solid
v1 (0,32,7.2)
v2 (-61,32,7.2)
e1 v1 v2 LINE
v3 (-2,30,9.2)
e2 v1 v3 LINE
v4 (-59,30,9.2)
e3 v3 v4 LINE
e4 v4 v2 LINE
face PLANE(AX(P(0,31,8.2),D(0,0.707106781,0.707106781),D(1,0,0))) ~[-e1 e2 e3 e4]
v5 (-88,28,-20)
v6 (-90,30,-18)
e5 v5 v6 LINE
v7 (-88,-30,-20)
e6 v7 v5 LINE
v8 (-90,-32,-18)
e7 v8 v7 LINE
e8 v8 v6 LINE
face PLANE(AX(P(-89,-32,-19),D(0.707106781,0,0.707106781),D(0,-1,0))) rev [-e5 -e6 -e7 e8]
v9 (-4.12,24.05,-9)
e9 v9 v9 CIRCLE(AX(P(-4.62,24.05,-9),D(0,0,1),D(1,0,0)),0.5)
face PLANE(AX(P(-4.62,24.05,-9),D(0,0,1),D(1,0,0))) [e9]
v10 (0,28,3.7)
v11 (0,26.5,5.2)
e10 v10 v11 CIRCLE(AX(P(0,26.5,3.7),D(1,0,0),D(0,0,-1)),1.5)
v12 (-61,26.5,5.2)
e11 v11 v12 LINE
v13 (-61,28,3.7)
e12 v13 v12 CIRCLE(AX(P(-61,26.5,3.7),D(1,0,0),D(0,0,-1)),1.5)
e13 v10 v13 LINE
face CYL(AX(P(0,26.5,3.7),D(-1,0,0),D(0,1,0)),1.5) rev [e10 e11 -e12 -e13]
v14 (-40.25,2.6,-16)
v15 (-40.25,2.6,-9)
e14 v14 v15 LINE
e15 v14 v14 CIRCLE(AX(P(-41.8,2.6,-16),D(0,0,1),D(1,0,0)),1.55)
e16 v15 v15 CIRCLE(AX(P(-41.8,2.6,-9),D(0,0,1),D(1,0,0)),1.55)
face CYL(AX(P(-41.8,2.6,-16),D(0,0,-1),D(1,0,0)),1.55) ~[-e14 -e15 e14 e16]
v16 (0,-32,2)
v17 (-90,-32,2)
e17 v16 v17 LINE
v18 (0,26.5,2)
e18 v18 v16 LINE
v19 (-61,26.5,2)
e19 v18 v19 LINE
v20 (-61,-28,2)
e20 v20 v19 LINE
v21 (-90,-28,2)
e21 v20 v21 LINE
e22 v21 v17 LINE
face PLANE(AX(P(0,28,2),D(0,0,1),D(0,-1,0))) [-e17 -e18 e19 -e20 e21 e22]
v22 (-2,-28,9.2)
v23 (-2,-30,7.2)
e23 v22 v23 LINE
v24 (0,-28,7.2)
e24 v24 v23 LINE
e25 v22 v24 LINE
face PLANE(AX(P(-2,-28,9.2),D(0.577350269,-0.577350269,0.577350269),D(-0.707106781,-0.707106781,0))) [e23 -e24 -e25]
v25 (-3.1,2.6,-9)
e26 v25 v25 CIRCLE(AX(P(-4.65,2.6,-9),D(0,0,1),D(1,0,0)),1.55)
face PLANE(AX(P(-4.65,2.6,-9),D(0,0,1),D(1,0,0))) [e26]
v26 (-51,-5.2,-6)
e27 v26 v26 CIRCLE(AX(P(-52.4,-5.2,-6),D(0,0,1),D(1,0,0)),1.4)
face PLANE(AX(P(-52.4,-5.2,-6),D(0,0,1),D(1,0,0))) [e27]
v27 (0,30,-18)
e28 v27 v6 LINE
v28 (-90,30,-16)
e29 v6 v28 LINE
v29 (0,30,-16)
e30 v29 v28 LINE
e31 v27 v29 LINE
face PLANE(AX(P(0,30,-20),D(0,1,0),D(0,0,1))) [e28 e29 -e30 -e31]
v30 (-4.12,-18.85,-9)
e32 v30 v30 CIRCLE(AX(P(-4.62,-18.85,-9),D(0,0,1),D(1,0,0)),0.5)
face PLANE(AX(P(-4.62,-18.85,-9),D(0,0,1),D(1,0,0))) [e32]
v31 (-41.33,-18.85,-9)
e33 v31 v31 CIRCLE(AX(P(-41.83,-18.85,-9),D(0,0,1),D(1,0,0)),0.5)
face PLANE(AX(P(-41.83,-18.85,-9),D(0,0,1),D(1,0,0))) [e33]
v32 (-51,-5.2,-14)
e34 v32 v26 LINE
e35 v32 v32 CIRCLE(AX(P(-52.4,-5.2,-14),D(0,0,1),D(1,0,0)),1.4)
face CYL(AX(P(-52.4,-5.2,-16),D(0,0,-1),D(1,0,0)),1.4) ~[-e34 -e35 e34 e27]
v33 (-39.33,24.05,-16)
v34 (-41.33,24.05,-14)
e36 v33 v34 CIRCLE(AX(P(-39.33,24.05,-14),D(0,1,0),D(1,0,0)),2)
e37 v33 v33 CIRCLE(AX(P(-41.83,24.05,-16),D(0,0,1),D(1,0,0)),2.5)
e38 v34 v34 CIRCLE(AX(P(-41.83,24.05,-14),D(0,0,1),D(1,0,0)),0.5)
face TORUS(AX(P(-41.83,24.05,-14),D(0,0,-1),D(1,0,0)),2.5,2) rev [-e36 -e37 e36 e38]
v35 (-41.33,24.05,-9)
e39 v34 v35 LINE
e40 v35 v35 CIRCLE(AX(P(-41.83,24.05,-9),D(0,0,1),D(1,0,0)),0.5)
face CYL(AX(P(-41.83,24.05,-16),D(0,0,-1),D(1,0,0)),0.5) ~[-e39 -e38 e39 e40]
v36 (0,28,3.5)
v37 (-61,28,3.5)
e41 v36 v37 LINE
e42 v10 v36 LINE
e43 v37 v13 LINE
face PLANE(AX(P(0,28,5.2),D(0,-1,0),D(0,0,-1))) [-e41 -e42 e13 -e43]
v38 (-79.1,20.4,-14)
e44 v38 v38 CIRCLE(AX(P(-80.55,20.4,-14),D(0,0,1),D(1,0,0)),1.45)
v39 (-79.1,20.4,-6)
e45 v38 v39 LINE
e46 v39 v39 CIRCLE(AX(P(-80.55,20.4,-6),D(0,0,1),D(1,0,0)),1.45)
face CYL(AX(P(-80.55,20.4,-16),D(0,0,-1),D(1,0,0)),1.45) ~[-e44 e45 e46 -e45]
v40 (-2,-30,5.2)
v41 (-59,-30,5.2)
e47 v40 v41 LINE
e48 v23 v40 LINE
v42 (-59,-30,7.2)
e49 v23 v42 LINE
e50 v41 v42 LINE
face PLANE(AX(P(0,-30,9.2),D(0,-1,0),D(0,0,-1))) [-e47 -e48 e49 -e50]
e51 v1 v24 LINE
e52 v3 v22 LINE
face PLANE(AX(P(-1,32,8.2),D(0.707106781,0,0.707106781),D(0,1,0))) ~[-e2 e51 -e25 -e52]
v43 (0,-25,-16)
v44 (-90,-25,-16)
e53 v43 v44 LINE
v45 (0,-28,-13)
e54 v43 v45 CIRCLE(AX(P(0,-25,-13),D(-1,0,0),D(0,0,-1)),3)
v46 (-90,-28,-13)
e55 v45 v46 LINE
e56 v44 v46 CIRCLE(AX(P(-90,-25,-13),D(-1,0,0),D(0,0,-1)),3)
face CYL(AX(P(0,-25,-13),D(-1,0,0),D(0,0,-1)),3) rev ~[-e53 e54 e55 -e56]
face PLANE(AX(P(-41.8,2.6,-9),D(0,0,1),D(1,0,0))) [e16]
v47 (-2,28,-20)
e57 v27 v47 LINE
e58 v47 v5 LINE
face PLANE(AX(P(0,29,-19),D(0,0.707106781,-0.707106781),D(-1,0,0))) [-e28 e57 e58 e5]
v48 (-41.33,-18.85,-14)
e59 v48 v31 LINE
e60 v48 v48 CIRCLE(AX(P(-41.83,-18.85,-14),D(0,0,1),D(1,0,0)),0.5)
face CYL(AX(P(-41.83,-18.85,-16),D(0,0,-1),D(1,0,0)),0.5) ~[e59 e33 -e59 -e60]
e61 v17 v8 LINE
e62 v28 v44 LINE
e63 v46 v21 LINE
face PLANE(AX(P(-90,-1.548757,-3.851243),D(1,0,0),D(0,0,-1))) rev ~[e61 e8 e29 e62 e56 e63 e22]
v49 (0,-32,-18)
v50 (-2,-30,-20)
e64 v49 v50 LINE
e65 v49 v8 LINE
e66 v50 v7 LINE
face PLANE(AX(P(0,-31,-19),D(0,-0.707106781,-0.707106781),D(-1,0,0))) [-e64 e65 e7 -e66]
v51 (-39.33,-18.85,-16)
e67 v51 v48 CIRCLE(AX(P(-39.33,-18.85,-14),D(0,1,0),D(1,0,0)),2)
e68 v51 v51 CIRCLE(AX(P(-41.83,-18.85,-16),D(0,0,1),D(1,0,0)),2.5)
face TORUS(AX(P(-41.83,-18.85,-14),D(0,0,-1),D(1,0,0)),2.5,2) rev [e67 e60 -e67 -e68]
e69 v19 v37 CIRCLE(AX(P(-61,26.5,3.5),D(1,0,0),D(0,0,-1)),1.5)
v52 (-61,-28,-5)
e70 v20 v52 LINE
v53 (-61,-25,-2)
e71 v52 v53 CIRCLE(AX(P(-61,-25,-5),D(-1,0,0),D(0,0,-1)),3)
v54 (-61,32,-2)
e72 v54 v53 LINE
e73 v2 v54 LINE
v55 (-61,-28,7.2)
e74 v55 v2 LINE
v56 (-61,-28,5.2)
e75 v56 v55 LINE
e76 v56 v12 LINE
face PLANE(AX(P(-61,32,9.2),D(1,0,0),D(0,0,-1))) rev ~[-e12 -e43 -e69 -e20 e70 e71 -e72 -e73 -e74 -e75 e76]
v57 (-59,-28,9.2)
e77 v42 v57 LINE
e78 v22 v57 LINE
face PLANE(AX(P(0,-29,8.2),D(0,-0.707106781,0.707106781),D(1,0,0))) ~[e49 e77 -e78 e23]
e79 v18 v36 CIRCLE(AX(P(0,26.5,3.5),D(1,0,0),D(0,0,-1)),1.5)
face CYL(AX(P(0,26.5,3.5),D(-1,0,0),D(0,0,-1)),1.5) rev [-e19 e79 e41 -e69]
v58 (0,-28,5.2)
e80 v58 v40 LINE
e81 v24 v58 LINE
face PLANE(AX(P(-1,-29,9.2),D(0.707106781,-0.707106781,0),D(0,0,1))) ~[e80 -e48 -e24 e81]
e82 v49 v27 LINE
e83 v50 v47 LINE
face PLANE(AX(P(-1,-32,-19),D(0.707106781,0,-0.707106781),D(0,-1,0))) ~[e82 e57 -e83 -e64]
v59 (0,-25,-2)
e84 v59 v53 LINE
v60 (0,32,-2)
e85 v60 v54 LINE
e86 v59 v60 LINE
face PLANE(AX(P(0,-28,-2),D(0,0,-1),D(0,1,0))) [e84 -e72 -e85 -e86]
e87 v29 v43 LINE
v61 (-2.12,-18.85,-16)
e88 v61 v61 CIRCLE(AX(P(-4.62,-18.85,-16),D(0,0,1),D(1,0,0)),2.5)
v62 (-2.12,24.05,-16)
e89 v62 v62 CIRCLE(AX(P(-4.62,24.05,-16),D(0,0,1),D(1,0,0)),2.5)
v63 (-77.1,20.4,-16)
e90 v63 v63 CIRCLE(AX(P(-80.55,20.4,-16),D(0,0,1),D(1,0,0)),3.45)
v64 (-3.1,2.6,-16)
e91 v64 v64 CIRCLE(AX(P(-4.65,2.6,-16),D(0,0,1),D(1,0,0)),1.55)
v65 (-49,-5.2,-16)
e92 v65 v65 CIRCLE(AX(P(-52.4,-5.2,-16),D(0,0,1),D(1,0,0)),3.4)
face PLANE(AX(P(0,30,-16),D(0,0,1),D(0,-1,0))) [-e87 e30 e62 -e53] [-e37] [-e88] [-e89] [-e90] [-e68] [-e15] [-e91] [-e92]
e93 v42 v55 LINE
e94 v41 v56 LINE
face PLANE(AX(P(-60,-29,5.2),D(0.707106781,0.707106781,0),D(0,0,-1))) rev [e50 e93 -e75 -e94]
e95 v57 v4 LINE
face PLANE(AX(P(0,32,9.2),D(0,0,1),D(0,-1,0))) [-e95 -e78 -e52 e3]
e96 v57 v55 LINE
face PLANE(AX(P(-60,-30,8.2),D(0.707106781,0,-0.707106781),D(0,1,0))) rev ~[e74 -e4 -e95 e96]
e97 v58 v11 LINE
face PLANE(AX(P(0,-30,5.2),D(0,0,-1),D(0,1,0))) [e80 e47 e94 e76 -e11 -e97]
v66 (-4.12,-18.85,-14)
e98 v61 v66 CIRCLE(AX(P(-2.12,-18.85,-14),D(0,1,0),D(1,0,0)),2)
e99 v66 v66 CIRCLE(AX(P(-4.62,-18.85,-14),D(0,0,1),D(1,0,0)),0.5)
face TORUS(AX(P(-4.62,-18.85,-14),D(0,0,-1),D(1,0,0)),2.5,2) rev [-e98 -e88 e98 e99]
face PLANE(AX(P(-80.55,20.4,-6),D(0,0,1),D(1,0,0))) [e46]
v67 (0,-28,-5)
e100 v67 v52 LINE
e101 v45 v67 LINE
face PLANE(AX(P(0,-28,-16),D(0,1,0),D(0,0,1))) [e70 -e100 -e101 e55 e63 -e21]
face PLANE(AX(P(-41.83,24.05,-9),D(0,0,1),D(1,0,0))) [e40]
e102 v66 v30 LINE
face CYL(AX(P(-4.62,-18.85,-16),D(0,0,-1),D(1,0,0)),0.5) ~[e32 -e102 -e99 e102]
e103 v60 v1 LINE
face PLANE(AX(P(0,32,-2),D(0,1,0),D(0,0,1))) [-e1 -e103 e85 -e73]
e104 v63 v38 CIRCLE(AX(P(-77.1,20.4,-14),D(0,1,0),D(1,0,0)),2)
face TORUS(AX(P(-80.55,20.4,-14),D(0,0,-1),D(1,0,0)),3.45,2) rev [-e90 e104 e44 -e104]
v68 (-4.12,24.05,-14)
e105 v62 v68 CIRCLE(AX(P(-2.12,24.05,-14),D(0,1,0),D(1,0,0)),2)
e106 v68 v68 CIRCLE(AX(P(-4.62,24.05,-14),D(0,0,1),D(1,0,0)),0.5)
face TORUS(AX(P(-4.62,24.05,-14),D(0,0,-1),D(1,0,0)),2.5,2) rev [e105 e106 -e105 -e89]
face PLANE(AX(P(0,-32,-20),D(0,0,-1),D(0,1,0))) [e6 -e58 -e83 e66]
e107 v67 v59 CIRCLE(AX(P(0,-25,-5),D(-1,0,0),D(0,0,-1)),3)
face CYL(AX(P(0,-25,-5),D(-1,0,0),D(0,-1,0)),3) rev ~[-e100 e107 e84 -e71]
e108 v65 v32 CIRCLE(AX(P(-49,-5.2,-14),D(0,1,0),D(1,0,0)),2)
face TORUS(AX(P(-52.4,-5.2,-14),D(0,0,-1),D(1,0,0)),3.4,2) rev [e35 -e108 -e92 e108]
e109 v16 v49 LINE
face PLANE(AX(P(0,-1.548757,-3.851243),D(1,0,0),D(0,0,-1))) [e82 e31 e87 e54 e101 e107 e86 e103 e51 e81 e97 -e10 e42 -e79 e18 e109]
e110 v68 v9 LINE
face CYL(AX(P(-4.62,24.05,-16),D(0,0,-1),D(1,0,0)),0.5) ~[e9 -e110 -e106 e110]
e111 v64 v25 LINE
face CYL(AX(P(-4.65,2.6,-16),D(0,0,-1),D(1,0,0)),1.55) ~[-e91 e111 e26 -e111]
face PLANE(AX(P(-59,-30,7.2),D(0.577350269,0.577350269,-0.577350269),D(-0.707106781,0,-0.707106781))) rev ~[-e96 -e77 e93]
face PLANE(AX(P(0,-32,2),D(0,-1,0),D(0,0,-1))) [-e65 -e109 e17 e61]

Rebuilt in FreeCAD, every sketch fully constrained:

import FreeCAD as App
import Part
import Sketcher


def edges_at(feature, points):
    """Names of the edges that pass closest to the given points."""
    edges = feature.Shape.Edges
    near = lambda p: min(range(len(edges)), key=lambda i: edges[i].distToShape(Part.Vertex(*p))[0])
    return sorted({f"Edge{near(p) + 1}" for p in points})


def add_polygon(sketch, points):
    """Adds a closed chain of lines whose ends are joined by coincident constraints."""
    first, n = sketch.GeometryCount, len(points)
    for a, b in zip(points, points[1:] + points[:1]):
        sketch.addGeometry(Part.LineSegment(App.Vector(*a, 0), App.Vector(*b, 0)), False)
    for i in range(n):
        sketch.addConstraint(Sketcher.Constraint("Coincident", first + i, 2, first + (i + 1) % n, 1))

doc = App.newDocument("Part")
body = doc.addObject("PartDesign::Body", "Body")

# Sketch on YZ plane
sketch1 = body.newObject("Sketcher::SketchObject", "Sketch")
sketch1.AttachmentSupport = (doc.getObject("YZ_Plane"), [""])
sketch1.MapMode = "FlatFace"
add_polygon(sketch1, [(-30, 5.2), (28, 5.2), (28, 2), (-32, 2), (-32, -20), (30, -20), (30, -16), (-28, -16), (-28, -2), (32, -2), (32, 9.2), (-30, 9.2)])  # lines 0-11
sketch1.addConstraint(Sketcher.Constraint("Horizontal", 0))
sketch1.addConstraint(Sketcher.Constraint("Vertical", 1))
sketch1.addConstraint(Sketcher.Constraint("Horizontal", 2))
sketch1.addConstraint(Sketcher.Constraint("Vertical", 3))
sketch1.addConstraint(Sketcher.Constraint("Horizontal", 4))
sketch1.addConstraint(Sketcher.Constraint("Vertical", 5))
sketch1.addConstraint(Sketcher.Constraint("Horizontal", 6))
sketch1.addConstraint(Sketcher.Constraint("Vertical", 7))
sketch1.addConstraint(Sketcher.Constraint("Horizontal", 8))
sketch1.addConstraint(Sketcher.Constraint("Vertical", 9))
sketch1.addConstraint(Sketcher.Constraint("Horizontal", 10))
sketch1.addConstraint(Sketcher.Constraint("Vertical", 11))
sketch1.addConstraint(Sketcher.Constraint("Symmetric", 1, 2, 7, 2, -1, 1))
sketch1.addConstraint(Sketcher.Constraint("Equal", 0, 6))
sketch1.addConstraint(Sketcher.Constraint("Equal", 2, 8))
sketch1.addConstraint(Sketcher.Constraint("Equal", 5, 11))
sketch1.addConstraint(Sketcher.Constraint("DistanceX", 0, 1, 0, 2, 58.0))
sketch1.addConstraint(Sketcher.Constraint("DistanceX", 2, 2, 2, 1, 60.0))
sketch1.addConstraint(Sketcher.Constraint("DistanceX", 4, 1, 4, 2, 62.0))
sketch1.addConstraint(Sketcher.Constraint("DistanceY", 3, 2, 3, 1, 22.0))
sketch1.addConstraint(Sketcher.Constraint("DistanceY", 5, 1, 5, 2, 4.0))
sketch1.addConstraint(Sketcher.Constraint("DistanceY", 7, 1, 7, 2, 14.0))
sketch1.addConstraint(Sketcher.Constraint("DistanceY", 1, 2, 1, 1, 3.2))
pad1 = body.newObject("PartDesign::Pad", "Pad")
pad1.Profile = sketch1
pad1.Length = 90
pad1.Reversed = True

# Sketch on XZ plane
sketch2 = body.newObject("Sketcher::SketchObject", "Sketch001")
sketch2.AttachmentSupport = (doc.getObject("XZ_Plane"), [""])
sketch2.MapMode = "FlatFace"
sketch2.AttachmentOffset = App.Placement(App.Vector(0, 0, -32), App.Rotation())
add_polygon(sketch2, [(-90, -2), (-90, 9), (-61, 9), (-61, -2)])  # lines 0-3
sketch2.addConstraint(Sketcher.Constraint("Vertical", 0))
sketch2.addConstraint(Sketcher.Constraint("Horizontal", 1))
sketch2.addConstraint(Sketcher.Constraint("Vertical", 2))
sketch2.addConstraint(Sketcher.Constraint("Horizontal", 3))
sketch2.addConstraint(Sketcher.Constraint("DistanceX", 1, 1, 1, 2, 29.0))
sketch2.addConstraint(Sketcher.Constraint("DistanceY", 0, 1, 0, 2, 11.2))
sketch2.addConstraint(Sketcher.Constraint("DistanceX", 0, 2, -1, 1, 90.0))
sketch2.addConstraint(Sketcher.Constraint("DistanceY", 2, 2, -1, 1, 2.0))
pocket1 = body.newObject("PartDesign::Pocket", "Pocket")
pocket1.Profile = sketch2
pocket1.Length = 60
pocket1.Reversed = True

# Sketch on XZ plane
sketch3 = body.newObject("Sketcher::SketchObject", "Sketch002")
sketch3.AttachmentSupport = (doc.getObject("XZ_Plane"), [""])
sketch3.MapMode = "FlatFace"
sketch3.AttachmentOffset = App.Placement(App.Vector(0, 0, 28), App.Rotation())
add_polygon(sketch3, [(-90, 5.2), (-90, 9.2), (-61, 9.2), (-61, 5.2)])  # lines 0-3
sketch3.addConstraint(Sketcher.Constraint("Vertical", 0))
sketch3.addConstraint(Sketcher.Constraint("Horizontal", 1))
sketch3.addConstraint(Sketcher.Constraint("Vertical", 2))
sketch3.addConstraint(Sketcher.Constraint("Horizontal", 3))
sketch3.addConstraint(Sketcher.Constraint("DistanceX", 1, 1, 1, 2, 29.0))
sketch3.addConstraint(Sketcher.Constraint("DistanceY", 0, 1, 0, 2, 4.0))
sketch3.addConstraint(Sketcher.Constraint("DistanceX", 0, 2, -1, 1, 90.0))
sketch3.addConstraint(Sketcher.Constraint("DistanceY", -1, 1, 0, 2, 9.2))
pocket2 = body.newObject("PartDesign::Pocket", "Pocket001")
pocket2.Profile = sketch3
pocket2.Type = "ThroughAll"
pocket2.Reversed = True

# Sketch on XY plane
sketch4 = body.newObject("Sketcher::SketchObject", "Sketch003")
sketch4.AttachmentSupport = (doc.getObject("XY_Plane"), [""])
sketch4.MapMode = "FlatFace"
sketch4.AttachmentOffset = App.Placement(App.Vector(0, 0, -16), App.Rotation())
sketch4.addGeometry(Part.Circle(App.Vector(-80.5, 20.4, 0), App.Vector(0, 0, 1), 1.4), False)
sketch4.addGeometry(Part.Circle(App.Vector(-52.4, -5.2, 0), App.Vector(0, 0, 1), 1.4), False)
sketch4.addConstraint(Sketcher.Constraint("Diameter", 0, 2.9))
sketch4.addConstraint(Sketcher.Constraint("Diameter", 1, 2.8))
sketch4.addConstraint(Sketcher.Constraint("DistanceY", -1, 1, 0, 3, 20.4))
sketch4.addConstraint(Sketcher.Constraint("DistanceX", 1, 3, -1, 1, 52.4))
sketch4.addConstraint(Sketcher.Constraint("DistanceY", 1, 3, -1, 1, 5.2))
sketch4.addConstraint(Sketcher.Constraint("DistanceX", 0, 3, -1, 1, 80.55))
pad2 = body.newObject("PartDesign::Pad", "Pad001")
pad2.Profile = sketch4
pad2.Length = 10
doc.recompute()

fillet = body.newObject("PartDesign::Fillet", "Fillet")
fillet.Base = (pad2, edges_at(pad2, [(-45, -28, -16), (-30.5, -28, -2)]))
fillet.Radius = 3
doc.recompute()

chamfer = body.newObject("PartDesign::Chamfer", "Chamfer")
chamfer.Base = (fillet, edges_at(fillet, [
    (0, -1, -20),
    (0, -30, 7.2),
    (0, 1, 9.2),
    (-45, 30, -20),
    (-45, -32, -20),
    (-90, -1, -20),
    (-30.5, 32, 9.2),
    (-61, 1, 9.2),
    (-30.5, -30, 9.2),
    (-61, -30, 7.2),
]))
chamfer.Size = 2

# Sketch on XY plane
sketch5 = body.newObject("Sketcher::SketchObject", "Sketch004")
sketch5.AttachmentSupport = (doc.getObject("XY_Plane"), [""])
sketch5.MapMode = "FlatFace"
sketch5.AttachmentOffset = App.Placement(App.Vector(0, 0, -16), App.Rotation())
sketch5.addGeometry(Part.Circle(App.Vector(-41.8, 24.1, 0), App.Vector(0, 0, 1), 0.5), False)
sketch5.addGeometry(Part.Circle(App.Vector(-41.8, -18.9, 0), App.Vector(0, 0, 1), 0.5), False)
sketch5.addGeometry(Part.Circle(App.Vector(-41.8, 2.6, 0), App.Vector(0, 0, 1), 1.6), False)
sketch5.addGeometry(Part.Circle(App.Vector(-4.6, -18.9, 0), App.Vector(0, 0, 1), 0.5), False)
sketch5.addGeometry(Part.Circle(App.Vector(-4.7, 2.6, 0), App.Vector(0, 0, 1), 1.6), False)
sketch5.addGeometry(Part.Circle(App.Vector(-4.6, 24.1, 0), App.Vector(0, 0, 1), 0.5), False)
sketch5.addConstraint(Sketcher.Constraint("Equal", 0, 1))
sketch5.addConstraint(Sketcher.Constraint("Equal", 1, 3))
sketch5.addConstraint(Sketcher.Constraint("Equal", 2, 4))
sketch5.addConstraint(Sketcher.Constraint("Equal", 3, 5))
sketch5.addConstraint(Sketcher.Constraint("Horizontal", 1, 3, 3, 3))
sketch5.addConstraint(Sketcher.Constraint("Horizontal", 2, 3, 4, 3))
sketch5.addConstraint(Sketcher.Constraint("Horizontal", 0, 3, 5, 3))
sketch5.addConstraint(Sketcher.Constraint("Vertical", 0, 3, 1, 3))
sketch5.addConstraint(Sketcher.Constraint("Vertical", 3, 3, 5, 3))
sketch5.addConstraint(Sketcher.Constraint("Diameter", 0, 1.0))
sketch5.addConstraint(Sketcher.Constraint("Diameter", 2, 3.1))
sketch5.addConstraint(Sketcher.Constraint("DistanceX", 2, 3, -1, 1, 41.8))
sketch5.addConstraint(Sketcher.Constraint("DistanceY", -1, 1, 2, 3, 2.6))
sketch5.addConstraint(Sketcher.Constraint("DistanceY", 1, 3, 0, 3, 42.9))
sketch5.addConstraint(Sketcher.Constraint("DistanceX", 0, 3, -1, 1, 41.83))
sketch5.addConstraint(Sketcher.Constraint("DistanceY", -1, 1, 0, 3, 24.05))
sketch5.addConstraint(Sketcher.Constraint("DistanceX", 3, 3, -1, 1, 4.62))
sketch5.addConstraint(Sketcher.Constraint("DistanceX", 4, 3, -1, 1, 4.65))
pad3 = body.newObject("PartDesign::Pad", "Pad002")
pad3.Profile = sketch5
pad3.Length = 7
doc.recompute()

fillet2 = body.newObject("PartDesign::Fillet", "Fillet001")
fillet2.Base = (pad3, edges_at(pad3, [
    (-42.33, -18.85, -16),
    (-42.33, 24.05, -16),
    (-5.12, -18.85, -16),
    (-5.12, 24.05, -16),
    (-82, 20.4, -16),
    (-53.8, -5.2, -16),
]))
fillet2.Radius = 2
doc.recompute()

fillet3 = body.newObject("PartDesign::Fillet", "Fillet002")
fillet3.Base = (fillet2, edges_at(fillet2, [(-30.5, 28, 5.2), (-30.5, 28, 2)]))
fillet3.Radius = 1.5

doc.recompute()
